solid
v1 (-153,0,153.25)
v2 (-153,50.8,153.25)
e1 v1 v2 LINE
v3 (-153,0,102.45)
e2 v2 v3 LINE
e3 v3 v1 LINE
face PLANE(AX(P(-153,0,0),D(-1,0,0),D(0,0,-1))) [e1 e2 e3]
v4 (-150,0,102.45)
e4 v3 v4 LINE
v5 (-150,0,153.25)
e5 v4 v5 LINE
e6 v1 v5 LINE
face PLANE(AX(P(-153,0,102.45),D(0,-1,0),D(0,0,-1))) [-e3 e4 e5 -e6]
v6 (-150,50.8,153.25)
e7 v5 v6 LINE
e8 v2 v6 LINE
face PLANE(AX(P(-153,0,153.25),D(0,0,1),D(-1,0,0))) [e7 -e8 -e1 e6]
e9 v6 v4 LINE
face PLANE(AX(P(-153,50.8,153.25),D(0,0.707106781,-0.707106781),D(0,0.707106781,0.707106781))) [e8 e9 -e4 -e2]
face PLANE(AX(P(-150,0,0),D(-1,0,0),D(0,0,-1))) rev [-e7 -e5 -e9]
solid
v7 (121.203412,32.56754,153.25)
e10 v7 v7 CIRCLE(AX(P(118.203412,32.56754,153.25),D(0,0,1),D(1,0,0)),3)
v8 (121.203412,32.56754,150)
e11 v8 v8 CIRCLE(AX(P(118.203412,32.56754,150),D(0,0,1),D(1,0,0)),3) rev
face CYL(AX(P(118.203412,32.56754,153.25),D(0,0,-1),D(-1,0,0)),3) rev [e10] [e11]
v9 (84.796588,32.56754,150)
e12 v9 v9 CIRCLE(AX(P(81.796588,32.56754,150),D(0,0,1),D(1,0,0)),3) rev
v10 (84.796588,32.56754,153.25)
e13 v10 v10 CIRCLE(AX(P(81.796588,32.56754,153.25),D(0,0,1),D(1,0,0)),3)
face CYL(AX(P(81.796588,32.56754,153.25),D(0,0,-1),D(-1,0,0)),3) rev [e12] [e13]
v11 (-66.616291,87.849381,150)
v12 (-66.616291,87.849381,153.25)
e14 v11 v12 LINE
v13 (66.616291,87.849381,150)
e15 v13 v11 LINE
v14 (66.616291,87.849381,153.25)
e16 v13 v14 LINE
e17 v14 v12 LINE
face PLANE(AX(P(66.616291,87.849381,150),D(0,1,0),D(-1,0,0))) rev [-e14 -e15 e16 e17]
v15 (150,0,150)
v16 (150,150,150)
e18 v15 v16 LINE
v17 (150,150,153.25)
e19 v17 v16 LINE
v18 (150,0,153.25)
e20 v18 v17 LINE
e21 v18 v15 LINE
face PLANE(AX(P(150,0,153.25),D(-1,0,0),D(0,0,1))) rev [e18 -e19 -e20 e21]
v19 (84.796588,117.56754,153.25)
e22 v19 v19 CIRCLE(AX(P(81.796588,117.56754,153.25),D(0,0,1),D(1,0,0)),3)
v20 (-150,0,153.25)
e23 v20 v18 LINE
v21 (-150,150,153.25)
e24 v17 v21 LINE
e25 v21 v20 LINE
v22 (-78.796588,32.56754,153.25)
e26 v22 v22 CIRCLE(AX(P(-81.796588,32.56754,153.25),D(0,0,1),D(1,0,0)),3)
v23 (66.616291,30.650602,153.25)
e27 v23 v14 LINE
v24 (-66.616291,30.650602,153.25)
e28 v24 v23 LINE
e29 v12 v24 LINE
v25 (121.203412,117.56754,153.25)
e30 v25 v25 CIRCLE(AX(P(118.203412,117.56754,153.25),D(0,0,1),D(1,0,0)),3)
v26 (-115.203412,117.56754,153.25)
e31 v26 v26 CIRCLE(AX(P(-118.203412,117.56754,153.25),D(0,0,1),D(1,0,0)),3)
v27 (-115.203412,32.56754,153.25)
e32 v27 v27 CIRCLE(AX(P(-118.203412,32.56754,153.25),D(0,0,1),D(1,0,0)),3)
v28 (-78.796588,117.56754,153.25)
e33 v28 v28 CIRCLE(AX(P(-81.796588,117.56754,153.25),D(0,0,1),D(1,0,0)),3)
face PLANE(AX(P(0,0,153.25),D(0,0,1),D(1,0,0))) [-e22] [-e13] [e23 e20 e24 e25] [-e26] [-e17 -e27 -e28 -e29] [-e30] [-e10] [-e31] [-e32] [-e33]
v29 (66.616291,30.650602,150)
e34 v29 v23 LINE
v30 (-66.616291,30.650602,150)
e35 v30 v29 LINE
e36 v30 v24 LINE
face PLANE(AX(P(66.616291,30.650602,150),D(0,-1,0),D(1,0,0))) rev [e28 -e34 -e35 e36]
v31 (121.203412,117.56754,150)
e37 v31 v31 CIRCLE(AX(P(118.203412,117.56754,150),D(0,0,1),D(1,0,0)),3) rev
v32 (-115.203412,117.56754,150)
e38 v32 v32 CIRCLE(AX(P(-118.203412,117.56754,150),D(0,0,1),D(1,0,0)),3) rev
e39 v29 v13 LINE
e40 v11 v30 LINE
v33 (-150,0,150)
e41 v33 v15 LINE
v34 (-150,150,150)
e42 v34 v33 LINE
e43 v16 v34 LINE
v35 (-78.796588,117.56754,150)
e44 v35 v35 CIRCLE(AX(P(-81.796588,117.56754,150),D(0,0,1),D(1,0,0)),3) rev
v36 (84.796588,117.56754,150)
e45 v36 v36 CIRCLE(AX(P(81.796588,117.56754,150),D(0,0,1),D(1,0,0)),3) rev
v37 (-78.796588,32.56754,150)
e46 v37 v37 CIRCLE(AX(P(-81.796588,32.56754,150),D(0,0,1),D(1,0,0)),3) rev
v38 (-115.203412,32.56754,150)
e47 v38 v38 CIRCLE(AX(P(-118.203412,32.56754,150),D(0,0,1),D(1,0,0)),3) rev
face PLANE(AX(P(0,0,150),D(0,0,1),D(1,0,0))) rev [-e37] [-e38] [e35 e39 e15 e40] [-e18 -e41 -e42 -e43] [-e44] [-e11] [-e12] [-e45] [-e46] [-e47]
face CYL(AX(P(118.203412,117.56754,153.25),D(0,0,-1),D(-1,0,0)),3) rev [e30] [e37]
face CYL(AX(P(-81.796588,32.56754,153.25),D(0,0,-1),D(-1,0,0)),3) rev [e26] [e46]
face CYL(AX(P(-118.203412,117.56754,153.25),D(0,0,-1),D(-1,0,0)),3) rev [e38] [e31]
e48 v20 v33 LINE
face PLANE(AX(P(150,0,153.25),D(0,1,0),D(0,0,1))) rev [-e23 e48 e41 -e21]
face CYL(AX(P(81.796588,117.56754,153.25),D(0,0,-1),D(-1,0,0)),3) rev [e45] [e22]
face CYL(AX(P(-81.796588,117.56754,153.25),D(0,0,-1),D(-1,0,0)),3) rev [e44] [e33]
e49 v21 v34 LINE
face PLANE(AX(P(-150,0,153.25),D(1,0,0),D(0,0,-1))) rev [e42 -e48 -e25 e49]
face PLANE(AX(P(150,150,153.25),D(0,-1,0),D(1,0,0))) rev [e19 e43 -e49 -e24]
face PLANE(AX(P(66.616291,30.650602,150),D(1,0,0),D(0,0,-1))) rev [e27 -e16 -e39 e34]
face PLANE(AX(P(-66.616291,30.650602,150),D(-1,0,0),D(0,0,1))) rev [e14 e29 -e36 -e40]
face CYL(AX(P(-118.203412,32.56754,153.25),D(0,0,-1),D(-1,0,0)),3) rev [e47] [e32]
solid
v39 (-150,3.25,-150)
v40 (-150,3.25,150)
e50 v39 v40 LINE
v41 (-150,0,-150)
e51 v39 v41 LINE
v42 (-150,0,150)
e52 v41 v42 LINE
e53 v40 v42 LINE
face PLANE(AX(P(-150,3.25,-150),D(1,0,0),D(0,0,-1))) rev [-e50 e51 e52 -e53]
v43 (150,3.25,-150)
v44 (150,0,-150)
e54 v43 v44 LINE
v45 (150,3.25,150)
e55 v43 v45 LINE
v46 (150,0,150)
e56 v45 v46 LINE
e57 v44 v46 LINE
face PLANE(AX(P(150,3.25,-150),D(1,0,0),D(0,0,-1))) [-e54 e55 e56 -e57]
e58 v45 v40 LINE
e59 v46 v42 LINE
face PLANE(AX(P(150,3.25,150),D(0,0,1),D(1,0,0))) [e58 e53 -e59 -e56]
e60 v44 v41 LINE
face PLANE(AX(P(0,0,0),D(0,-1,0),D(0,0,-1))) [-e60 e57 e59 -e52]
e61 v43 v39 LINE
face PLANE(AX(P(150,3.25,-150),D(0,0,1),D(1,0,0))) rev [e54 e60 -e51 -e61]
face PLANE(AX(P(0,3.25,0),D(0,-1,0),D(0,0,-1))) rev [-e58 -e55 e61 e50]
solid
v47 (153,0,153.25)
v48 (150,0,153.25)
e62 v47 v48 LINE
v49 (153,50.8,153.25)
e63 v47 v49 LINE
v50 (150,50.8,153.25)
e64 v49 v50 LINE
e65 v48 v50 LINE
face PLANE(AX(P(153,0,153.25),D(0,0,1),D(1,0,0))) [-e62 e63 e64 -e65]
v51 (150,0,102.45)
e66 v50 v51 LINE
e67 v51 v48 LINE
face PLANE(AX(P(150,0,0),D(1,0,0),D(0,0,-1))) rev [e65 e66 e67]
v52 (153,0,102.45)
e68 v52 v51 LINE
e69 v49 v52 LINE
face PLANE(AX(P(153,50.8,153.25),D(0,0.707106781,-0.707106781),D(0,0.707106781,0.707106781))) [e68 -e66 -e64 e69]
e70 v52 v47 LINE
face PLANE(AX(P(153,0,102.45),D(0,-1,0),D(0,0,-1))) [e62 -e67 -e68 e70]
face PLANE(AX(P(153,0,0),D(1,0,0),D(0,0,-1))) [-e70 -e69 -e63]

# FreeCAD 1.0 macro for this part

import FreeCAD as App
import Part
import Sketcher
from FreeCAD import Vector


def add_polygon(sketch, points):
    """Adds a closed chain of lines whose ends are joined by coincident constraints."""
    first, n = sketch.GeometryCount, len(points)
    for a, b in zip(points, points[1:] + points[:1]):
        sketch.addGeometry(Part.LineSegment(App.Vector(*a, 0), App.Vector(*b, 0)), False)
    for i in range(n):
        sketch.addConstraint(Sketcher.Constraint("Coincident", first + i, 2, first + (i + 1) % n, 1))

doc = App.newDocument("Part")
params = doc.addObject("Spreadsheet::Sheet", "Params")
for row, (alias, value) in enumerate([
    ("sketch1_width", "300 mm"),
    ("pad1_length", "3.25 mm"),
    ("sketch2_width", "300 mm"),
    ("sketch2_height", "150 mm"),
    ("pad2_length", "3.25 mm"),
    ("pocket1_length", "3.25 mm"),
    ("sketch4_diameter", "6 mm"),
    ("sketch5_width", "50.8 mm"),
    ("pad3_length", "3 mm"),
], start=1):
    params.set(f"A{row}", alias)
    params.set(f"B{row}", "=" + value)
    params.setAlias(f"B{row}", alias)

body = doc.addObject("PartDesign::Body", "Body")

# Sketch on XZ plane
sketch1 = body.newObject("Sketcher::SketchObject", "Sketch")
sketch1.AttachmentSupport = (doc.getObject("XZ_Plane"), [""])
sketch1.MapMode = "FlatFace"
add_polygon(sketch1, [(-150, -150), (-150, 150), (150, 150), (150, -150)])  # lines 0-3
sketch1.addConstraint([
    Sketcher.Constraint("Vertical", 0),
    Sketcher.Constraint("Horizontal", 1),
    Sketcher.Constraint("Vertical", 2),
    Sketcher.Constraint("Horizontal", 3),
    Sketcher.Constraint("Symmetric", 0, 2, 2, 2, -1, 1),
    Sketcher.Constraint("Equal", 3, 0),
    Sketcher.Constraint("DistanceX", 1, 1, 1, 2, 300.0),
])
sketch1.setExpression("Constraints[10]", "Params.sketch1_width")
pad1 = body.newObject("PartDesign::Pad", "Pad")
pad1.Profile = sketch1
pad1.setExpression("Length", "Params.pad1_length")
pad1.Reversed = True
body2 = doc.addObject("PartDesign::Body", "Body001")

# Sketch on XY plane
sketch2 = body2.newObject("Sketcher::SketchObject", "Sketch001")
sketch2.AttachmentSupport = (doc.getObject("XY_Plane001"), [""])
sketch2.MapMode = "FlatFace"
sketch2.AttachmentOffset = App.Placement(Vector(0, 0, 150), App.Rotation())
add_polygon(sketch2, [(-150, 150), (-150, 0), (150, 0), (150, 150)])  # lines 0-3
sketch2.addConstraint([
    Sketcher.Constraint("Vertical", 0),
    Sketcher.Constraint("Horizontal", 1),
    Sketcher.Constraint("Vertical", 2),
    Sketcher.Constraint("Horizontal", 3),
    Sketcher.Constraint("Symmetric", 0, 2, 1, 2, -1, 1),
    Sketcher.Constraint("DistanceX", 1, 1, 1, 2, 300.0),
    Sketcher.Constraint("DistanceY", 0, 2, 0, 1, 150.0),
])
sketch2.setExpression("Constraints[9]", "Params.sketch2_width")
sketch2.setExpression("Constraints[10]", "Params.sketch2_height")
pad2 = body2.newObject("PartDesign::Pad", "Pad001")
pad2.Profile = sketch2
pad2.setExpression("Length", "Params.pad2_length")

# Sketch on XY plane
sketch3 = body2.newObject("Sketcher::SketchObject", "Sketch002")
sketch3.AttachmentSupport = (doc.getObject("XY_Plane001"), [""])
sketch3.MapMode = "FlatFace"
sketch3.AttachmentOffset = App.Placement(Vector(0, 0, 153.25), App.Rotation())
add_polygon(sketch3, [(-67, 88), (-67, 31), (67, 31), (67, 88)])  # lines 0-3
sketch3.addConstraint([
    Sketcher.Constraint("Vertical", 0),
    Sketcher.Constraint("Horizontal", 1),
    Sketcher.Constraint("Vertical", 2),
    Sketcher.Constraint("Horizontal", 3),
    Sketcher.Constraint("DistanceX", 1, 1, 1, 2, 133.232581),
    Sketcher.Constraint("DistanceY", 0, 2, 0, 1, 57.198779),
    Sketcher.Constraint("DistanceX", 0, 2, -1, 1, 66.616291),
    Sketcher.Constraint("DistanceY", -1, 1, 2, 2, 87.849381),
])
pocket1 = body2.newObject("PartDesign::Pocket", "Pocket")
pocket1.Profile = sketch3
pocket1.setExpression("Length", "Params.pocket1_length")

# Sketch on XY plane
sketch4 = body2.newObject("Sketcher::SketchObject", "Sketch003")
sketch4.AttachmentSupport = (doc.getObject("XY_Plane001"), [""])
sketch4.MapMode = "FlatFace"
sketch4.AttachmentOffset = App.Placement(Vector(0, 0, 132.5), App.Rotation())
sketch4.addGeometry([
    Part.Circle(Vector(81.8, 117.6, 0), Vector(0, 0, 1), 3),  # 0
    Part.Circle(Vector(118.2, 117.6, 0), Vector(0, 0, 1), 3),  # 1
    Part.Circle(Vector(118.2, 32.6, 0), Vector(0, 0, 1), 3),  # 2
    Part.Circle(Vector(81.8, 32.6, 0), Vector(0, 0, 1), 3),  # 3
    Part.Circle(Vector(-81.8, 32.6, 0), Vector(0, 0, 1), 3),  # 4
    Part.Circle(Vector(-118.2, 32.6, 0), Vector(0, 0, 1), 3),  # 5
    Part.Circle(Vector(-118.2, 117.6, 0), Vector(0, 0, 1), 3),  # 6
    Part.Circle(Vector(-81.8, 117.6, 0), Vector(0, 0, 1), 3),  # 7
], False)
sketch4.addConstraint([
    Sketcher.Constraint("Equal", 0, 1),
    Sketcher.Constraint("Equal", 1, 2),
    Sketcher.Constraint("Equal", 2, 3),
    Sketcher.Constraint("Equal", 3, 4),
    Sketcher.Constraint("Equal", 4, 5),
    Sketcher.Constraint("Equal", 5, 6),
    Sketcher.Constraint("Equal", 6, 7),
    Sketcher.Constraint("Symmetric", 3, 3, 4, 3, -2),
    Sketcher.Constraint("Symmetric", 2, 3, 5, 3, -2),
    Sketcher.Constraint("Symmetric", 1, 3, 6, 3, -2),
    Sketcher.Constraint("Symmetric", 0, 3, 7, 3, -2),
    Sketcher.Constraint("Horizontal", 0, 3, 1, 3),
    Sketcher.Constraint("Horizontal", 2, 3, 3, 3),
    Sketcher.Constraint("Vertical", 1, 3, 2, 3),
    Sketcher.Constraint("Vertical", 0, 3, 3, 3),
    Sketcher.Constraint("Diameter", 0, 6.0),
    Sketcher.Constraint("DistanceY", 2, 3, 1, 3, 85.0),
    Sketcher.Constraint("DistanceX", 4, 3, 2, 3, 200.0),
    Sketcher.Constraint("DistanceX", -1, 1, 0, 3, 81.796588),
    Sketcher.Constraint("DistanceY", -1, 1, 0, 3, 117.56754),
])
sketch4.setExpression("Constraints[15]", "Params.sketch4_diameter")
pocket2 = body2.newObject("PartDesign::Pocket", "Pocket001")
pocket2.Profile = sketch4
pocket2.Type = "ThroughAll"
pocket2.Reversed = True
body3 = doc.addObject("PartDesign::Body", "Body002")

# Sketch on YZ plane
sketch5 = body3.newObject("Sketcher::SketchObject", "Sketch004")
sketch5.AttachmentSupport = (doc.getObject("YZ_Plane002"), [""])
sketch5.MapMode = "FlatFace"
sketch5.AttachmentOffset = App.Placement(Vector(0, 0, 150), App.Rotation())
add_polygon(sketch5, [(51, 153), (0, 153), (0, 102)])  # lines 0-2
sketch5.addConstraint([
    Sketcher.Constraint("Horizontal", 0),
    Sketcher.Constraint("Vertical", 1),
    Sketcher.Constraint("PointOnObject", 0, 2, -2),
    Sketcher.Constraint("Equal", 0, 1),
    Sketcher.Constraint("DistanceX", 0, 2, 0, 1, 50.8),
    Sketcher.Constraint("DistanceY", -1, 1, 0, 2, 153.25),
])
sketch5.setExpression("Constraints[7]", "Params.sketch5_width")
pad3 = body3.newObject("PartDesign::Pad", "Pad002")
pad3.Profile = sketch5
pad3.setExpression("Length", "Params.pad3_length")
body4 = doc.addObject("PartDesign::Body", "Body003")
doc.recompute()

mirroring = doc.addObject("Part::Mirroring", "Mirroring")
mirroring.Source = body3
mirroring.Base = Vector(0, 0, 0)
mirroring.Normal = Vector(1, 0, 0)
body4.BaseFeature = mirroring
doc.recompute()
mirroring.Visibility = False

doc.recompute()
